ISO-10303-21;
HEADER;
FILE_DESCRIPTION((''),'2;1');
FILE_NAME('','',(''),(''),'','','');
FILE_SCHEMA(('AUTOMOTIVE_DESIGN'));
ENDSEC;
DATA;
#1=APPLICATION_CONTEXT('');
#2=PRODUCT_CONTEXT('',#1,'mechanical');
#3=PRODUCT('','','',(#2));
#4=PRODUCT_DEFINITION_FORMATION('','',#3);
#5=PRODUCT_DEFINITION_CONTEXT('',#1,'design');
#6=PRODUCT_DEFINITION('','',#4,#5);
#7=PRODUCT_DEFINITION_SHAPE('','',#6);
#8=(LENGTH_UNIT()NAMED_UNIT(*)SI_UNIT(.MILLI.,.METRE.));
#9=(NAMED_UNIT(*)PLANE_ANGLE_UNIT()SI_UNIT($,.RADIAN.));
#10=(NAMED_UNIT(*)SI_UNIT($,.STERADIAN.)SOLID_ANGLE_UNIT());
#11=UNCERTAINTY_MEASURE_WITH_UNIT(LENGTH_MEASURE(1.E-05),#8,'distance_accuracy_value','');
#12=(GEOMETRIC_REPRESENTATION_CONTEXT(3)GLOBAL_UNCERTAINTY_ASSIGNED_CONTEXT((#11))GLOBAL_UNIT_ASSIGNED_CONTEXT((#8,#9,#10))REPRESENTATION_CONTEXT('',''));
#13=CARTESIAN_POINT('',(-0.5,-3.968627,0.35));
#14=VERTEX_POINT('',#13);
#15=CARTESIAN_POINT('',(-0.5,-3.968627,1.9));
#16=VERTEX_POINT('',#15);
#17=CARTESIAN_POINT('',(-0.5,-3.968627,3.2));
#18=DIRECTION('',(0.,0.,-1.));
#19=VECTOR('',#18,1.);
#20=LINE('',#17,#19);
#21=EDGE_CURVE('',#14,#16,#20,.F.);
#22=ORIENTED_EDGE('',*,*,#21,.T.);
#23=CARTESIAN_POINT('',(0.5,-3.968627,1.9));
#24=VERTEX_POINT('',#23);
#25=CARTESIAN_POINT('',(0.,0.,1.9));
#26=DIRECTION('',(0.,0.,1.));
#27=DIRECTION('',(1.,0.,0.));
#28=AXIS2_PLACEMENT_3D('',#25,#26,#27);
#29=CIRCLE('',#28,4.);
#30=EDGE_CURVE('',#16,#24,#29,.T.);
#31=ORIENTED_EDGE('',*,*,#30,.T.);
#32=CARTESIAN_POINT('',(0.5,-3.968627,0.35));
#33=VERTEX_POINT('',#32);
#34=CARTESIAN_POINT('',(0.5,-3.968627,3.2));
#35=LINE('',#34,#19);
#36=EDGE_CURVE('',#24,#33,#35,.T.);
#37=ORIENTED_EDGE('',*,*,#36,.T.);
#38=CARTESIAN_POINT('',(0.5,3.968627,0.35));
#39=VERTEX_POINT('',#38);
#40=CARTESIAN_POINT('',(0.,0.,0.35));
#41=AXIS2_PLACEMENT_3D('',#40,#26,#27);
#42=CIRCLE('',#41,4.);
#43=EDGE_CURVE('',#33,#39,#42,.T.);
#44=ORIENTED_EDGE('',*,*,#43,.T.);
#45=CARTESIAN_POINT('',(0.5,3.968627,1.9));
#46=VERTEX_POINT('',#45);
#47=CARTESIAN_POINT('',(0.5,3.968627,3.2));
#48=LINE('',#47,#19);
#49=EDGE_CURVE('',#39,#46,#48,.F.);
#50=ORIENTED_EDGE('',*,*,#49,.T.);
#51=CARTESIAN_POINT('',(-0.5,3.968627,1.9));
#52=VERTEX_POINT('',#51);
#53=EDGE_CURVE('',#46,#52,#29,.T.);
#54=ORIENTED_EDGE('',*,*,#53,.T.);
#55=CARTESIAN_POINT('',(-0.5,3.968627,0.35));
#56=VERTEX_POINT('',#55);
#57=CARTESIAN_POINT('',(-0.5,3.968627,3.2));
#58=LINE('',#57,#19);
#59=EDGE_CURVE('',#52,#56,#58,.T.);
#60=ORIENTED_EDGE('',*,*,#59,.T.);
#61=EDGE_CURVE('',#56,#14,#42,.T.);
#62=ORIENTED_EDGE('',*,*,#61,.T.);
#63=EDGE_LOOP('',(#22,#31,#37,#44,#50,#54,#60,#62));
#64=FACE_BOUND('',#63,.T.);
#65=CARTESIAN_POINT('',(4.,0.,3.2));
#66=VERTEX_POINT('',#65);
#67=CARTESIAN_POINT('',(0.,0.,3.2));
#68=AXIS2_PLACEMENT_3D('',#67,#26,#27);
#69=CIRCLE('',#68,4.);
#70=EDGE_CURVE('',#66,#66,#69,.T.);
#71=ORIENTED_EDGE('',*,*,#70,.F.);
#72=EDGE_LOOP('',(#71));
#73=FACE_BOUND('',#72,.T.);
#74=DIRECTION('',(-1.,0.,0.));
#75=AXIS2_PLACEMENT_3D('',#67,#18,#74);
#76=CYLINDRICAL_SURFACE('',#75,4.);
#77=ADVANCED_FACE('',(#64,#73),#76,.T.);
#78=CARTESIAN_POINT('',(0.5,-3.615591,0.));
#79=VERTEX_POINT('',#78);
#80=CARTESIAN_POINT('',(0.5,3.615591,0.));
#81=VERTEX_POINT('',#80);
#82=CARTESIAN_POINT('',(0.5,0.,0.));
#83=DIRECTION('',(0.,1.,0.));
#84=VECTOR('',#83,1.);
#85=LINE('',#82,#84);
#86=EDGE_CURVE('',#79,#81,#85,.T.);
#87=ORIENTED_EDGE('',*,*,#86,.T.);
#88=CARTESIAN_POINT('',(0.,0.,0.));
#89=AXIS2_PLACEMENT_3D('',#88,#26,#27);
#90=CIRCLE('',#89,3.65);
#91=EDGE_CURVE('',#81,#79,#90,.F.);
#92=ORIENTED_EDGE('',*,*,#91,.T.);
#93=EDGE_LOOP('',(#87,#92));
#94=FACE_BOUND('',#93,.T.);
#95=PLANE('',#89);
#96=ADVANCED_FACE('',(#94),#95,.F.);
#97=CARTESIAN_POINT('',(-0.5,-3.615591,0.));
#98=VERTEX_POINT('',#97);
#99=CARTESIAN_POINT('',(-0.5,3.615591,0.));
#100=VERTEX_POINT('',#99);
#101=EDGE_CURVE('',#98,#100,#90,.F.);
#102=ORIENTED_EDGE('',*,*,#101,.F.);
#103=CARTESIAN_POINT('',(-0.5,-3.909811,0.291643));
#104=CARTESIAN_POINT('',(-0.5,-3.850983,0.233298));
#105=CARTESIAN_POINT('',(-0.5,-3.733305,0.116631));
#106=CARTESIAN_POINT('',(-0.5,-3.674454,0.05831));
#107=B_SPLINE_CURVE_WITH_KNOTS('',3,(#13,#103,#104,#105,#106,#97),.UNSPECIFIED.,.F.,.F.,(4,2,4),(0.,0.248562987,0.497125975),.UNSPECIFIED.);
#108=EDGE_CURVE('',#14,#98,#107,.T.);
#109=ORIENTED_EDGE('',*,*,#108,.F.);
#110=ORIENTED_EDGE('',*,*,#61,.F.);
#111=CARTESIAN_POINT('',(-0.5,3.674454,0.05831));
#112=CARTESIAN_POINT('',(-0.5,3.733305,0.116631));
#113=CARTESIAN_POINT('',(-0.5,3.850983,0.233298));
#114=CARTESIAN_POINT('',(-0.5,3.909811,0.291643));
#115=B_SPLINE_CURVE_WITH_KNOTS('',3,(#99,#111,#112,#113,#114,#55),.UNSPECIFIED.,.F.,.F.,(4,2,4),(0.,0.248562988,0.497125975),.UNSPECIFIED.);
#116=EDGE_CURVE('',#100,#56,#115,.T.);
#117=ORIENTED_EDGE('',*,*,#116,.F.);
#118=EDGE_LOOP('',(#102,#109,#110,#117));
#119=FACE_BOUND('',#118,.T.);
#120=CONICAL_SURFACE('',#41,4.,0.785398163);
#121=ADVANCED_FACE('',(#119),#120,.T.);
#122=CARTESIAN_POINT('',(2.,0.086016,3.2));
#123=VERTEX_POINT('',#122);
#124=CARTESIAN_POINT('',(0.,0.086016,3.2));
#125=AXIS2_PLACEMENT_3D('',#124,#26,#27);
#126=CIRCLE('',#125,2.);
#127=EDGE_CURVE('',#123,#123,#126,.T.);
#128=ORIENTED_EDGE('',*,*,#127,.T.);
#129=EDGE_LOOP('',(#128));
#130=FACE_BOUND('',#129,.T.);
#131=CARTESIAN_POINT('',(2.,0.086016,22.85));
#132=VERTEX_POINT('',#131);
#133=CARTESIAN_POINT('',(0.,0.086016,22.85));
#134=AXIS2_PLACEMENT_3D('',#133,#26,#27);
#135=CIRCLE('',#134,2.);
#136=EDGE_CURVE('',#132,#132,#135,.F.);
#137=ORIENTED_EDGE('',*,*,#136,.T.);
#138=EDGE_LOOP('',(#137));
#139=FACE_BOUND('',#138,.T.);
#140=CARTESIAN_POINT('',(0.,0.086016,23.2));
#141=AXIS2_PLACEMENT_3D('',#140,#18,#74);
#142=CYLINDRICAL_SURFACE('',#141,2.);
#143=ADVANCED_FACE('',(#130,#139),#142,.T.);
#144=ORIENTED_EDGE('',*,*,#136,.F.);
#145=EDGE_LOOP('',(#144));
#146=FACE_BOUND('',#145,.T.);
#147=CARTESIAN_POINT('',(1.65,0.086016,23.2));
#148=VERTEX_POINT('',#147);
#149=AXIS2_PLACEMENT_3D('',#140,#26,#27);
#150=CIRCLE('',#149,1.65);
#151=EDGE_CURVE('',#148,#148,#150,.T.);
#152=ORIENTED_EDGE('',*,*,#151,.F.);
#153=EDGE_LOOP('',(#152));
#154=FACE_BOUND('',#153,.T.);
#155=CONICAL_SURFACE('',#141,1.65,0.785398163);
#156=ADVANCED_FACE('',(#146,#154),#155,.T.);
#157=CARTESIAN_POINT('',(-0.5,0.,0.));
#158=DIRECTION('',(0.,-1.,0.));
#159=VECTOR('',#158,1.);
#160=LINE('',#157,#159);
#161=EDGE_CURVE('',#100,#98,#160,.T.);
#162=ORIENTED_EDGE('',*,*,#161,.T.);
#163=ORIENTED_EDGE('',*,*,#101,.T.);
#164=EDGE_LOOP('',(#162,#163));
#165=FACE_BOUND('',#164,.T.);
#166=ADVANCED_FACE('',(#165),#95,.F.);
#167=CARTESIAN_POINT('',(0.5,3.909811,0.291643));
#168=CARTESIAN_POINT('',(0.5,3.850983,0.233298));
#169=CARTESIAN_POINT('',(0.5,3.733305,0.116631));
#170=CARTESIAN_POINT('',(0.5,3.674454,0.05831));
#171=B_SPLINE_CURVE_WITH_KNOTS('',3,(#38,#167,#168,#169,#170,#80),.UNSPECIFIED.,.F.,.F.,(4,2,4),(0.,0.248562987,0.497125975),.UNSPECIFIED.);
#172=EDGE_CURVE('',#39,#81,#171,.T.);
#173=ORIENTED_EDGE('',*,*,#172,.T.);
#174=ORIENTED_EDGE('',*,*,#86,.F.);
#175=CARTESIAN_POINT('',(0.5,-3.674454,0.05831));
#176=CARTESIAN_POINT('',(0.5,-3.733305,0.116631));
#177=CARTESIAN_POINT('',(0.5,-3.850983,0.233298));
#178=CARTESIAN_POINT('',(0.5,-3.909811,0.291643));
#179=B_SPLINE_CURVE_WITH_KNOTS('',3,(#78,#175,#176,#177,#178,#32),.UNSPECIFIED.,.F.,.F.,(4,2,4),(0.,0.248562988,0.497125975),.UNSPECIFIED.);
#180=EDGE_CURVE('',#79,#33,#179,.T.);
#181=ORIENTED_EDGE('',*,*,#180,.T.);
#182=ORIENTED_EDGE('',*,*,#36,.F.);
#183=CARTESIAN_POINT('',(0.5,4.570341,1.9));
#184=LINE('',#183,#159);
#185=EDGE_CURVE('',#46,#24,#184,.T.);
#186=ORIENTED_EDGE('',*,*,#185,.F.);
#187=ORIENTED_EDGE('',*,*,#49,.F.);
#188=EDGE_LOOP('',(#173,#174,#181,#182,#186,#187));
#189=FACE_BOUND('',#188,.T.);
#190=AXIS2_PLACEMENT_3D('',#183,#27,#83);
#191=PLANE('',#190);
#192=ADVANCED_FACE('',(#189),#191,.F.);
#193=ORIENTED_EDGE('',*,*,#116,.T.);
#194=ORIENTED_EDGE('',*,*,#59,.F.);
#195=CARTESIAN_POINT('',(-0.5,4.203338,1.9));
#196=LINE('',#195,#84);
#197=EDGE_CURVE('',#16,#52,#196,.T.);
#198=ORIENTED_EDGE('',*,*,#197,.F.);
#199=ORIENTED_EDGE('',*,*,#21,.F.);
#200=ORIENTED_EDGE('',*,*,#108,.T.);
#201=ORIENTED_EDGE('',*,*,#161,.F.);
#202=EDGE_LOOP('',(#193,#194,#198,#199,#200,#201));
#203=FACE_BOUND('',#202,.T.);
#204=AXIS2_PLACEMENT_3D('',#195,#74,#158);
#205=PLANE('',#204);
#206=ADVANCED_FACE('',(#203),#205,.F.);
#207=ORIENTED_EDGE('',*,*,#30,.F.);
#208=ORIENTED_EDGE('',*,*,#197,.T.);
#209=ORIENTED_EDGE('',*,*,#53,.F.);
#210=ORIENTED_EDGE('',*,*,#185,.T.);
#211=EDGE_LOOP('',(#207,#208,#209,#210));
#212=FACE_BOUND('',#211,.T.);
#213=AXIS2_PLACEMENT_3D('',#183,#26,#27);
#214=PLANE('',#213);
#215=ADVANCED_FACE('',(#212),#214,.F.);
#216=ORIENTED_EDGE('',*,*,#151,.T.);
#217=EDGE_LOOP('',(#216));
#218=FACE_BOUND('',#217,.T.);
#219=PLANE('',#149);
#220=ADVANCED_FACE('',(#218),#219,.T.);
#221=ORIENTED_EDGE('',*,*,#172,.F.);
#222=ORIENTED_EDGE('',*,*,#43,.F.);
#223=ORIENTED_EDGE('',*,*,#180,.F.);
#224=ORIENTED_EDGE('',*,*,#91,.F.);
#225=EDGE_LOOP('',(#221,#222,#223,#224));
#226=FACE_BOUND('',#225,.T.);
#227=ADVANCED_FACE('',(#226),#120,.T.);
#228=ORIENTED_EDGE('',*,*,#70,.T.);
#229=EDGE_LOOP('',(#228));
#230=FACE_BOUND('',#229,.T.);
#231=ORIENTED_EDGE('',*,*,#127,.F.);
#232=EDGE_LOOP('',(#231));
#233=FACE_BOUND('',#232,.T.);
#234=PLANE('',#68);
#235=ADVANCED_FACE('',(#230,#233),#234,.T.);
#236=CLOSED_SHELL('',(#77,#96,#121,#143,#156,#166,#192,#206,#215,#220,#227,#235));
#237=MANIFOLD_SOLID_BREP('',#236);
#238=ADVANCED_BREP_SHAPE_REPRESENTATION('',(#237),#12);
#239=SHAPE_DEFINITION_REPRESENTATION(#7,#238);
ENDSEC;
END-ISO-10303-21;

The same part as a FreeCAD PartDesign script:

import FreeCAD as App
import Part
import Sketcher

V = App.Vector
Q = App.Units.Quantity


def edges_at(feature, points):
    """Names of the edges that pass closest to the given points."""
    edges = feature.Shape.Edges
    near = lambda p: min(range(len(edges)), key=lambda i: edges[i].distToShape(Part.Vertex(*p))[0])
    return sorted({f"Edge{near(p) + 1}" for p in points})

doc = App.newDocument("Part")
body = doc.addObject("PartDesign::Body", "Body")

# Sketch on XY plane
sketch1 = body.newObject("Sketcher::SketchObject", "Sketch")
sketch1.AttachmentSupport = (doc.getObject("XY_Plane"), [""])
sketch1.MapMode = "FlatFace"
sketch1.addGeometry(Part.Circle(V(0, 0, 0), V(0, 0, 1), 4), False)
sketch1.addConstraint([
    Sketcher.Constraint("Coincident", 0, 3, -1, 1),
    Sketcher.Constraint("Diameter", 0, Q("8 mm")),
])
pad1 = body.newObject("PartDesign::Pad", "Pad")
pad1.Profile = sketch1
pad1.Length = 3.2

# Sketch on XY plane
sketch2 = body.newObject("Sketcher::SketchObject", "Sketch001")
sketch2.AttachmentSupport = (doc.getObject("XY_Plane"), [""])
sketch2.MapMode = "FlatFace"
sketch2.AttachmentOffset = App.Placement(V(0, 0, 3.2), App.Rotation())
sketch2.addGeometry(Part.Circle(V(0, 0.086016, 0), V(0, 0, 1), 2), False)
sketch2.addConstraint([
    Sketcher.Constraint("PointOnObject", 0, 3, -2),
    Sketcher.Constraint("Diameter", 0, Q("4 mm")),
    Sketcher.Constraint("DistanceY", -1, 1, 0, 3, Q("0.086016 mm")),
])
pad2 = body.newObject("PartDesign::Pad", "Pad001")
pad2.Profile = sketch2
pad2.Length = 20

# Sketch on XY plane
sketch3 = body.newObject("Sketcher::SketchObject", "Sketch002")
sketch3.AttachmentSupport = (doc.getObject("XY_Plane"), [""])
sketch3.MapMode = "FlatFace"
sketch3.addGeometry([
    Part.LineSegment(V(-0.5, -4.490059, 0), V(-0.5, 4.203338, 0)),
    Part.LineSegment(V(-0.5, 4.203338, 0), V(0.5, 4.570341, 0)),
    Part.LineSegment(V(0.5, 4.570341, 0), V(0.5, -4.707968, 0)),
    Part.LineSegment(V(0.5, -4.707968, 0), V(-0.5, -4.490059, 0)),
], False)
sketch3.addConstraint([
    Sketcher.Constraint("Coincident", 0, 2, 1, 1),
    Sketcher.Constraint("Coincident", 1, 2, 2, 1),
    Sketcher.Constraint("Coincident", 2, 2, 3, 1),
    Sketcher.Constraint("Coincident", 3, 2, 0, 1),
    Sketcher.Constraint("Vertical", 0),
    Sketcher.Constraint("Vertical", 2),
    Sketcher.Constraint("DistanceX", 0, 2, 1, 2, Q("1 mm")),
    Sketcher.Constraint("DistanceX", 0, 2, -1, 1, Q("0.5 mm")),
    Sketcher.Constraint("DistanceY", 2, 2, 2, 1, Q("9.278309 mm")),
    Sketcher.Constraint("DistanceY", 3, 2, 1, 2, Q("9.0604 mm")),
    Sketcher.Constraint("Distance", 1, Q("1.065219 mm")),
    Sketcher.Constraint("DistanceY", -1, 1, 1, 2, Q("4.570341 mm")),
])
pocket1 = body.newObject("PartDesign::Pocket", "Pocket")
pocket1.Profile = sketch3
pocket1.Length = 1.9
pocket1.Reversed = True
doc.recompute()

chamfer = body.newObject("PartDesign::Chamfer", "Chamfer")
chamfer.Base = (pocket1, edges_at(pocket1, [(-4, 0, 0), (4, 0, 0), (-2, 0.086, 23.2)]))
chamfer.Size = 0.35

doc.recompute()
